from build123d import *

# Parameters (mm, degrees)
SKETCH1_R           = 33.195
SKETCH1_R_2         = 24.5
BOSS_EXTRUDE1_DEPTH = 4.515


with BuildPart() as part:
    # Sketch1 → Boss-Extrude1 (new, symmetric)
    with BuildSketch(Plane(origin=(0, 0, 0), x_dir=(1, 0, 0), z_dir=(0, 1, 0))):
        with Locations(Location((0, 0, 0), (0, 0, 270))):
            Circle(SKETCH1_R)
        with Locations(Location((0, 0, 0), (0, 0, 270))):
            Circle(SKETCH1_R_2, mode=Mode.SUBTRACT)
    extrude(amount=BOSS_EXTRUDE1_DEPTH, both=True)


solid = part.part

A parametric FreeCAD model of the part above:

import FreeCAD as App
import Part
import Sketcher
from FreeCAD import Vector

doc = App.newDocument("Part")
body = doc.addObject("PartDesign::Body", "Body")

# Sketch on XZ plane
sketch1 = body.newObject("Sketcher::SketchObject", "Sketch")
sketch1.AttachmentSupport = (doc.getObject("XZ_Plane"), [""])
sketch1.MapMode = "FlatFace"
sketch1.addGeometry(Part.Circle(Vector(0, 0, 0), Vector(0, 0, 1), 33), False)
sketch1.addGeometry(Part.Circle(Vector(0, 0, 0), Vector(0, 0, 1), 24), False)
sketch1.addConstraint(Sketcher.Constraint("Coincident", 0, 3, -1, 1))
sketch1.addConstraint(Sketcher.Constraint("Coincident", 1, 3, -1, 1))
sketch1.addConstraint(Sketcher.Constraint("Diameter", 1, 49.0))
sketch1.addConstraint(Sketcher.Constraint("Diameter", 0, 66.39))
pad1 = body.newObject("PartDesign::Pad", "Pad")
pad1.Profile = sketch1
pad1.Length = 9.03
pad1.Midplane = True

doc.recompute()
